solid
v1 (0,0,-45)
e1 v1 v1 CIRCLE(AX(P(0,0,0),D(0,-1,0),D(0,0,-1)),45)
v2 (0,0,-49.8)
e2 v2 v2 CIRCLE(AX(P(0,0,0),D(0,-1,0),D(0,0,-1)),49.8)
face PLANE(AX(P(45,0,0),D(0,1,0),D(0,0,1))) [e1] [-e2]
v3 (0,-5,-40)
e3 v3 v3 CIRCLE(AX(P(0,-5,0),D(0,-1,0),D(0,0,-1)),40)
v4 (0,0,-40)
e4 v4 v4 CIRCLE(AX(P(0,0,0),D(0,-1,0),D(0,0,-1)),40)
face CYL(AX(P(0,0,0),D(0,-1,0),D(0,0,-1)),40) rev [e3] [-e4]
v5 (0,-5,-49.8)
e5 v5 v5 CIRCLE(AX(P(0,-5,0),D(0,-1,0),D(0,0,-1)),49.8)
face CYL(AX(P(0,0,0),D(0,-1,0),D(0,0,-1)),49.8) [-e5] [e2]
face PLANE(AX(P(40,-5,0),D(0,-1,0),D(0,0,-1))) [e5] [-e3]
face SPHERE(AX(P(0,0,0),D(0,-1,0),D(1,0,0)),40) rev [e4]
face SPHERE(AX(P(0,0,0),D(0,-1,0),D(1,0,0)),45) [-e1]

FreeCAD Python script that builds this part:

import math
import FreeCAD as App
import Part
import Sketcher

V = App.Vector
Q = App.Units.Quantity

doc = App.newDocument("Part")
params = doc.addObject("Spreadsheet::Sheet", "Params")
for row, (alias, value) in enumerate([
    ("sketch1_radius", "45 mm"),
    ("sketch1_radius2", "40 mm"),
    ("sketch1_width", "4.8 mm"),
    ("revolution_angle", "360 deg"),
], start=1):
    params.set(f"A{row}", alias)
    params.set(f"B{row}", "=" + value)
    params.setAlias(f"B{row}", alias)

body = doc.addObject("PartDesign::Body", "Body")

sketch1 = body.newObject("Sketcher::SketchObject", "Sketch")
sketch1.AttachmentSupport = (doc.getObject("XY_Plane"), [""])
sketch1.MapMode = "FlatFace"
sketch1.addGeometry([
    Part.LineSegment(V(49.8, 0, 0), V(45, 0, 0)),
    Part.ArcOfCircle(Part.Circle(V(0, 0, 0), V(0, 0, 1), 45), math.radians(0), math.radians(90)),
    Part.LineSegment(V(0, 45, 0), V(0, 40, 0)),
    Part.ArcOfCircle(Part.Circle(V(0, 0, 0), V(0, 0, 1), 40), math.radians(0), math.radians(90)),
    Part.LineSegment(V(40, 0, 0), V(40, -5, 0)),
    Part.LineSegment(V(40, -5, 0), V(49.8, -5, 0)),
    Part.LineSegment(V(49.8, -5, 0), V(49.8, 0, 0)),
], False)
sketch1.addConstraint([
    Sketcher.Constraint("Coincident", 0, 2, 1, 1),
    Sketcher.Constraint("Coincident", 1, 2, 2, 1),
    Sketcher.Constraint("Coincident", 2, 2, 3, 2),
    Sketcher.Constraint("Tangent", 3, 1, 4, 1),
    Sketcher.Constraint("Coincident", 4, 2, 5, 1),
    Sketcher.Constraint("Coincident", 5, 2, 6, 1),
    Sketcher.Constraint("Coincident", 6, 2, 0, 1),
    Sketcher.Constraint("Horizontal", 0),
    Sketcher.Constraint("Vertical", 2),
    Sketcher.Constraint("Vertical", 4),
    Sketcher.Constraint("Horizontal", 5),
    Sketcher.Constraint("Vertical", 6),
    Sketcher.Constraint("Coincident", 1, 3, -1, 1),
    Sketcher.Constraint("Coincident", 3, 3, -1, 1),
    Sketcher.Constraint("PointOnObject", 0, 2, -1),
    Sketcher.Constraint("PointOnObject", 1, 2, -2),
    Sketcher.Constraint("Equal", 2, 4),
    Sketcher.Constraint("Radius", 1, Q("45 mm")),
    Sketcher.Constraint("Radius", 3, Q("40 mm")),
    Sketcher.Constraint("DistanceX", 0, 2, 0, 1, Q("4.8 mm")),
])
sketch1.setExpression("Constraints[17]", "Params.sketch1_radius")
sketch1.setExpression("Constraints[18]", "Params.sketch1_radius2")
sketch1.setExpression("Constraints[19]", "Params.sketch1_width")
revolution = body.newObject("PartDesign::Revolution", "Revolution")
revolution.Profile = sketch1
revolution.ReferenceAxis = (sketch1, ["V_Axis"])
revolution.setExpression("Angle", "Params.revolution_angle")

doc.recompute()
